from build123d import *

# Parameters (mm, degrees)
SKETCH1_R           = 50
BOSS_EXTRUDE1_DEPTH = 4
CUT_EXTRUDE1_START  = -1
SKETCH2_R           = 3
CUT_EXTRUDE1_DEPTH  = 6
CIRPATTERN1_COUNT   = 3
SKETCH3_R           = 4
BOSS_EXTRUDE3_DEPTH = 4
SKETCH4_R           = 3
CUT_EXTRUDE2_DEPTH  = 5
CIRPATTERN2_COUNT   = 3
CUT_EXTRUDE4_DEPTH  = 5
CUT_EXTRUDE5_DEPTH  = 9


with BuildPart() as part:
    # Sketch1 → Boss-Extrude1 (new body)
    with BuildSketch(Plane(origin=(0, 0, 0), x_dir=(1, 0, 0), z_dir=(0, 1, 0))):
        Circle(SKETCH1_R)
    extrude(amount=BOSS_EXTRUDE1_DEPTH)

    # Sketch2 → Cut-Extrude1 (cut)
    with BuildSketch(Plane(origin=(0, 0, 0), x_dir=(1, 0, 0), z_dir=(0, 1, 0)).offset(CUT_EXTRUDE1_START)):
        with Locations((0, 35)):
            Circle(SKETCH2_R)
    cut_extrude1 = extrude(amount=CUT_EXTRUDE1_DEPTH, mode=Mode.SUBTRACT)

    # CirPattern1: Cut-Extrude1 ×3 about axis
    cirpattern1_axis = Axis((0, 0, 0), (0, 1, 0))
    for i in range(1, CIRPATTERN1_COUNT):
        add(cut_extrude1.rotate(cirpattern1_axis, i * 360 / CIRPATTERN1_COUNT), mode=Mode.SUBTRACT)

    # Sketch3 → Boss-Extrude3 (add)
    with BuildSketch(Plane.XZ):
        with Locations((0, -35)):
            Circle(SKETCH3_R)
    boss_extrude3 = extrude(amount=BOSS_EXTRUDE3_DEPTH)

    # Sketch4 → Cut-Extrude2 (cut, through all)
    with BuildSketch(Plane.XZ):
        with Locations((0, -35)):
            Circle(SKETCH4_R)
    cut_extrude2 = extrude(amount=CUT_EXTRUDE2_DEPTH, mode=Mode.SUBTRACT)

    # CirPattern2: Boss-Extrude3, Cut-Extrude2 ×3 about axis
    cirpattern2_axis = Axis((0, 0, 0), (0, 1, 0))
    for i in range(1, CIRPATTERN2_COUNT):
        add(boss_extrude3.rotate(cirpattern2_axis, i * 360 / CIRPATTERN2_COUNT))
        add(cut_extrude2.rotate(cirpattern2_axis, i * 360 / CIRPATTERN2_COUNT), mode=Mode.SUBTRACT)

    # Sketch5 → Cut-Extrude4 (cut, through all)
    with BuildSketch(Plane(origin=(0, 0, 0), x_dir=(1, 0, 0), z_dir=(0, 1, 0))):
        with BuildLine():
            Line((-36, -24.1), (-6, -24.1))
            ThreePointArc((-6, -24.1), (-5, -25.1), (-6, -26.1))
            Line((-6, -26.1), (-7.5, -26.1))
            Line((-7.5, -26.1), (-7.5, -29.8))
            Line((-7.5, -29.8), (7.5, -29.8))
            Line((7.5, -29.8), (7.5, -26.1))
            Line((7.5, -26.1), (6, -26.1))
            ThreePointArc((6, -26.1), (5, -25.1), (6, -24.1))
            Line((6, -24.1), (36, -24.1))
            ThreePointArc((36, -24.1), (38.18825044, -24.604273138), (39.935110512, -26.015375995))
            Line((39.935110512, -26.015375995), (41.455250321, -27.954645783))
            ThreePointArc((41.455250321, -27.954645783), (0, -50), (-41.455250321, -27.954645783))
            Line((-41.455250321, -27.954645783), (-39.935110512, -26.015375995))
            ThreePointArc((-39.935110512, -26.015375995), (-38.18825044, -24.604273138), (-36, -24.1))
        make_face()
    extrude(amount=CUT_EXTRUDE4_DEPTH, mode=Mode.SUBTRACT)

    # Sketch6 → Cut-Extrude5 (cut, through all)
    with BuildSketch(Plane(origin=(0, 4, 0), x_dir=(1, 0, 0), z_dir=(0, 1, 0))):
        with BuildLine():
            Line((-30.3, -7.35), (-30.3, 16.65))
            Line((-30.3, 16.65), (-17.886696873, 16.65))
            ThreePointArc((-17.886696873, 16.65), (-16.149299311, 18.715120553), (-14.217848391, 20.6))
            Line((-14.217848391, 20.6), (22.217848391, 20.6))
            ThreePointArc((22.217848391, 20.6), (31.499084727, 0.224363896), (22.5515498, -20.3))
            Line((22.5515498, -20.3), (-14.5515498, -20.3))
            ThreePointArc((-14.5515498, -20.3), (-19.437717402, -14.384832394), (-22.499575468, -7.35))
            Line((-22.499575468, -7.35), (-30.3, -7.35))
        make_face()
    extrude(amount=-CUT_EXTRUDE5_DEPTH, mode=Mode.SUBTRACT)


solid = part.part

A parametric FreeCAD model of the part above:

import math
import FreeCAD as App
import Part
import Sketcher
from FreeCAD import Vector
Q = App.Units.Quantity

doc = App.newDocument("Part")
body = doc.addObject("PartDesign::Body", "Body")

# Sketch on XZ plane
sketch1 = body.newObject("Sketcher::SketchObject", "Sketch")
sketch1.AttachmentSupport = (doc.getObject("XZ_Plane"), [""])
sketch1.MapMode = "FlatFace"
sketch1.addGeometry(Part.Circle(Vector(0, 0, 0), Vector(0, 0, 1), 50), False)
sketch1.addConstraint(Sketcher.Constraint("Coincident", 0, 3, -1, 1))
sketch1.addConstraint(Sketcher.Constraint("Diameter", 0, Q("100 mm")))
pad1 = body.newObject("PartDesign::Pad", "Pad")
pad1.Profile = sketch1
pad1.Length = 4
pad1.Reversed = True

# Sketch on XZ plane
sketch2 = body.newObject("Sketcher::SketchObject", "Sketch001")
sketch2.AttachmentSupport = (doc.getObject("XZ_Plane"), [""])
sketch2.MapMode = "FlatFace"
sketch2.AttachmentOffset = App.Placement(Vector(0, 0, 1), App.Rotation())
sketch2.addGeometry(Part.Circle(Vector(0, -35, 0), Vector(0, 0, 1), 3), False)
sketch2.addConstraint(Sketcher.Constraint("PointOnObject", 0, 3, -2))
sketch2.addConstraint(Sketcher.Constraint("Diameter", 0, Q("6 mm")))
sketch2.addConstraint(Sketcher.Constraint("DistanceY", 0, 3, -1, 1, Q("35 mm")))
pocket1 = body.newObject("PartDesign::Pocket", "Pocket")
pocket1.Profile = sketch2
pocket1.Length = 6
doc.recompute()

polarpattern = body.newObject("PartDesign::PolarPattern", "PolarPattern")
polarpattern.Originals = [pocket1]
polarpattern.Axis = (doc.getObject("Y_Axis"), [""])
polarpattern.Angle = 360
polarpattern.Occurrences = 3
body.Tip = polarpattern

# Sketch on XZ plane
sketch3 = body.newObject("Sketcher::SketchObject", "Sketch002")
sketch3.AttachmentSupport = (doc.getObject("XZ_Plane"), [""])
sketch3.MapMode = "FlatFace"
sketch3.addGeometry(Part.Circle(Vector(0, -35, 0), Vector(0, 0, 1), 4), False)
sketch3.addConstraint(Sketcher.Constraint("PointOnObject", 0, 3, -2))
sketch3.addConstraint(Sketcher.Constraint("Diameter", 0, Q("8 mm")))
sketch3.addConstraint(Sketcher.Constraint("DistanceY", 0, 3, -1, 1, Q("35 mm")))
pad2 = body.newObject("PartDesign::Pad", "Pad001")
pad2.Profile = sketch3
pad2.Length = 4

# Sketch on XZ plane
sketch4 = body.newObject("Sketcher::SketchObject", "Sketch003")
sketch4.AttachmentSupport = (doc.getObject("XZ_Plane"), [""])
sketch4.MapMode = "FlatFace"
sketch4.addGeometry(Part.Circle(Vector(0, -35, 0), Vector(0, 0, 1), 3), False)
sketch4.addConstraint(Sketcher.Constraint("PointOnObject", 0, 3, -2))
sketch4.addConstraint(Sketcher.Constraint("Diameter", 0, Q("6 mm")))
sketch4.addConstraint(Sketcher.Constraint("DistanceY", 0, 3, -1, 1, Q("35 mm")))
pocket2 = body.newObject("PartDesign::Pocket", "Pocket001")
pocket2.Profile = sketch4
pocket2.Type = "ThroughAll"
pocket2.Reversed = True
doc.recompute()

polarpattern2 = body.newObject("PartDesign::PolarPattern", "PolarPattern001")
polarpattern2.Originals = [pad2, pocket2]
polarpattern2.Axis = (doc.getObject("Y_Axis"), [""])
polarpattern2.Angle = 360
polarpattern2.Occurrences = 3
body.Tip = polarpattern2

# Sketch on XZ plane
sketch5 = body.newObject("Sketcher::SketchObject", "Sketch004")
sketch5.AttachmentSupport = (doc.getObject("XZ_Plane"), [""])
sketch5.MapMode = "FlatFace"
sketch5.addGeometry(Part.LineSegment(Vector(-6, 24.1, 0), Vector(-36, 24.1, 0)), False)
sketch5.addGeometry(Part.ArcOfCircle(Part.Circle(Vector(-36, 29.1, 0), Vector(0, 0, 1), 5), math.radians(-142), math.radians(-90)), False)
sketch5.addGeometry(Part.LineSegment(Vector(-39.9, 26, 0), Vector(-41.5, 28, 0)), False)
sketch5.addGeometry(Part.ArcOfCircle(Part.Circle(Vector(0, 0, 0), Vector(0, 0, 1), 50), math.radians(34), math.radians(146)), False)
sketch5.addGeometry(Part.LineSegment(Vector(41.5, 28, 0), Vector(39.9, 26, 0)), False)
sketch5.addGeometry(Part.ArcOfCircle(Part.Circle(Vector(36, 29.1, 0), Vector(0, 0, 1), 5), math.radians(-90), math.radians(-38)), False)
sketch5.addGeometry(Part.LineSegment(Vector(36, 24.1, 0), Vector(6, 24.1, 0)), False)
sketch5.addGeometry(Part.ArcOfCircle(Part.Circle(Vector(6, 25.1, 0), Vector(0, 0, 1), 1), math.radians(90), math.radians(270)), False)
sketch5.addGeometry(Part.LineSegment(Vector(6, 26.1, 0), Vector(7.5, 26.1, 0)), False)
sketch5.addGeometry(Part.LineSegment(Vector(7.5, 26.1, 0), Vector(7.5, 29.8, 0)), False)
sketch5.addGeometry(Part.LineSegment(Vector(7.5, 29.8, 0), Vector(-7.5, 29.8, 0)), False)
sketch5.addGeometry(Part.LineSegment(Vector(-7.5, 29.8, 0), Vector(-7.5, 26.1, 0)), False)
sketch5.addGeometry(Part.LineSegment(Vector(-7.5, 26.1, 0), Vector(-6, 26.1, 0)), False)
sketch5.addGeometry(Part.ArcOfCircle(Part.Circle(Vector(-6, 25.1, 0), Vector(0, 0, 1), 1), math.radians(-90), math.radians(90)), False)
sketch5.addConstraint(Sketcher.Constraint("Tangent", 0, 2, 1, 2))
sketch5.addConstraint(Sketcher.Constraint("Tangent", 1, 1, 2, 1))
sketch5.addConstraint(Sketcher.Constraint("Coincident", 2, 2, 3, 2))
sketch5.addConstraint(Sketcher.Constraint("Coincident", 3, 1, 4, 1))
sketch5.addConstraint(Sketcher.Constraint("Tangent", 4, 2, 5, 2))
sketch5.addConstraint(Sketcher.Constraint("Tangent", 5, 1, 6, 1))
sketch5.addConstraint(Sketcher.Constraint("Tangent", 6, 2, 7, 2))
sketch5.addConstraint(Sketcher.Constraint("Tangent", 7, 1, 8, 1))
sketch5.addConstraint(Sketcher.Constraint("Coincident", 8, 2, 9, 1))
sketch5.addConstraint(Sketcher.Constraint("Coincident", 9, 2, 10, 1))
sketch5.addConstraint(Sketcher.Constraint("Coincident", 10, 2, 11, 1))
sketch5.addConstraint(Sketcher.Constraint("Coincident", 11, 2, 12, 1))
sketch5.addConstraint(Sketcher.Constraint("Tangent", 12, 2, 13, 2))
sketch5.addConstraint(Sketcher.Constraint("Tangent", 13, 1, 0, 1))
sketch5.addConstraint(Sketcher.Constraint("Horizontal", 0))
sketch5.addConstraint(Sketcher.Constraint("Horizontal", 6))
sketch5.addConstraint(Sketcher.Constraint("Horizontal", 8))
sketch5.addConstraint(Sketcher.Constraint("Vertical", 9))
sketch5.addConstraint(Sketcher.Constraint("Horizontal", 10))
sketch5.addConstraint(Sketcher.Constraint("Vertical", 11))
sketch5.addConstraint(Sketcher.Constraint("Horizontal", 12))
sketch5.addConstraint(Sketcher.Constraint("Coincident", 3, 3, -1, 1))
sketch5.addConstraint(Sketcher.Constraint("Equal", 1, 5))
sketch5.addConstraint(Sketcher.Constraint("Equal", 7, 13))
sketch5.addConstraint(Sketcher.Constraint("Symmetric", 1, 3, 5, 3, -2))
sketch5.addConstraint(Sketcher.Constraint("Horizontal", 2, 2, 3, 1))
sketch5.addConstraint(Sketcher.Constraint("Equal", 0, 6))
sketch5.addConstraint(Sketcher.Constraint("Equal", 8, 12))
sketch5.addConstraint(Sketcher.Constraint("Radius", 1, Q("5 mm")))
sketch5.addConstraint(Sketcher.Constraint("Radius", 3, Q("50 mm")))
sketch5.addConstraint(Sketcher.Constraint("Radius", 7, Q("1 mm")))
sketch5.addConstraint(Sketcher.Constraint("DistanceX", 0, 2, 0, 1, Q("30 mm")))
sketch5.addConstraint(Sketcher.Constraint("DistanceX", 10, 2, 10, 1, Q("15 mm")))
sketch5.addConstraint(Sketcher.Constraint("DistanceX", 8, 1, 8, 2, Q("1.5 mm")))
sketch5.addConstraint(Sketcher.Constraint("DistanceY", 9, 1, 9, 2, Q("3.7 mm")))
sketch5.addConstraint(Sketcher.Constraint("DistanceY", -1, 1, 1, 3, Q("29.1 mm")))
sketch5.addConstraint(Sketcher.Constraint("Distance", 2, Q("2.46406 mm")))
pocket3 = body.newObject("PartDesign::Pocket", "Pocket002")
pocket3.Profile = sketch5
pocket3.Type = "ThroughAll"

# Sketch on XZ plane
sketch6 = body.newObject("Sketcher::SketchObject", "Sketch005")
sketch6.AttachmentSupport = (doc.getObject("XZ_Plane"), [""])
sketch6.MapMode = "FlatFace"
sketch6.AttachmentOffset = App.Placement(Vector(0, 0, -4), App.Rotation())
sketch6.addGeometry(Part.LineSegment(Vector(-30, -17, 0), Vector(-30, 7, 0)), False)
sketch6.addGeometry(Part.LineSegment(Vector(-30, 7, 0), Vector(-22, 7, 0)), False)
sketch6.addGeometry(Part.ArcOfCircle(Part.Circle(Vector(4, 0, 0), Vector(0, 0, 1), 27), math.radians(132), math.radians(164)), False)
sketch6.addGeometry(Part.LineSegment(Vector(-15, 20, 0), Vector(23, 20, 0)), False)
sketch6.addGeometry(Part.ArcOfCircle(Part.Circle(Vector(4, 0, 0), Vector(0, 0, 1), 28), math.radians(-49), math.radians(48)), False)
sketch6.addGeometry(Part.LineSegment(Vector(22, -21, 0), Vector(-14, -21, 0)), False)
sketch6.addGeometry(Part.ArcOfCircle(Part.Circle(Vector(4, 0, 0), Vector(0, 0, 1), 27), math.radians(-142.74), math.radians(-131.49)), False)
sketch6.addGeometry(Part.LineSegment(Vector(-18, -17, 0), Vector(-30, -17, 0)), False)
sketch6.addConstraint(Sketcher.Constraint("Coincident", 0, 2, 1, 1))
sketch6.addConstraint(Sketcher.Constraint("Coincident", 1, 2, 2, 2))
sketch6.addConstraint(Sketcher.Constraint("Coincident", 2, 1, 3, 1))
sketch6.addConstraint(Sketcher.Constraint("Coincident", 3, 2, 4, 2))
sketch6.addConstraint(Sketcher.Constraint("Coincident", 4, 1, 5, 1))
sketch6.addConstraint(Sketcher.Constraint("Coincident", 5, 2, 6, 2))
sketch6.addConstraint(Sketcher.Constraint("Coincident", 6, 1, 7, 1))
sketch6.addConstraint(Sketcher.Constraint("Coincident", 7, 2, 0, 1))
sketch6.addConstraint(Sketcher.Constraint("Vertical", 0))
sketch6.addConstraint(Sketcher.Constraint("Horizontal", 1))
sketch6.addConstraint(Sketcher.Constraint("Horizontal", 3))
sketch6.addConstraint(Sketcher.Constraint("Horizontal", 5))
sketch6.addConstraint(Sketcher.Constraint("Horizontal", 7))
sketch6.addConstraint(Sketcher.Constraint("Coincident", 4, 3, 2, 3))
sketch6.addConstraint(Sketcher.Constraint("Coincident", 6, 3, 2, 3))
sketch6.addConstraint(Sketcher.Constraint("Equal", 2, 4))
sketch6.addConstraint(Sketcher.Constraint("Equal", 4, 6))
sketch6.addConstraint(Sketcher.Constraint("PointOnObject", 2, 3, -1))
sketch6.addConstraint(Sketcher.Constraint("Radius", 2, Q("27.5 mm")))
sketch6.addConstraint(Sketcher.Constraint("DistanceY", 0, 1, 0, 2, Q("24 mm")))
sketch6.addConstraint(Sketcher.Constraint("DistanceX", -1, 1, 2, 3, Q("4 mm")))
sketch6.addConstraint(Sketcher.Constraint("DistanceX", 0, 2, -1, 1, Q("30.3 mm")))
sketch6.addConstraint(Sketcher.Constraint("DistanceY", -1, 1, 2, 1, Q("20.3 mm")))
sketch6.addConstraint(Sketcher.Constraint("DistanceY", 4, 1, -1, 1, Q("20.6 mm")))
sketch6.addConstraint(Sketcher.Constraint("DistanceY", -1, 1, 0, 2, Q("7.35 mm")))
pocket4 = body.newObject("PartDesign::Pocket", "Pocket003")
pocket4.Profile = sketch6
pocket4.Type = "ThroughAll"
pocket4.Reversed = True

doc.recompute()
